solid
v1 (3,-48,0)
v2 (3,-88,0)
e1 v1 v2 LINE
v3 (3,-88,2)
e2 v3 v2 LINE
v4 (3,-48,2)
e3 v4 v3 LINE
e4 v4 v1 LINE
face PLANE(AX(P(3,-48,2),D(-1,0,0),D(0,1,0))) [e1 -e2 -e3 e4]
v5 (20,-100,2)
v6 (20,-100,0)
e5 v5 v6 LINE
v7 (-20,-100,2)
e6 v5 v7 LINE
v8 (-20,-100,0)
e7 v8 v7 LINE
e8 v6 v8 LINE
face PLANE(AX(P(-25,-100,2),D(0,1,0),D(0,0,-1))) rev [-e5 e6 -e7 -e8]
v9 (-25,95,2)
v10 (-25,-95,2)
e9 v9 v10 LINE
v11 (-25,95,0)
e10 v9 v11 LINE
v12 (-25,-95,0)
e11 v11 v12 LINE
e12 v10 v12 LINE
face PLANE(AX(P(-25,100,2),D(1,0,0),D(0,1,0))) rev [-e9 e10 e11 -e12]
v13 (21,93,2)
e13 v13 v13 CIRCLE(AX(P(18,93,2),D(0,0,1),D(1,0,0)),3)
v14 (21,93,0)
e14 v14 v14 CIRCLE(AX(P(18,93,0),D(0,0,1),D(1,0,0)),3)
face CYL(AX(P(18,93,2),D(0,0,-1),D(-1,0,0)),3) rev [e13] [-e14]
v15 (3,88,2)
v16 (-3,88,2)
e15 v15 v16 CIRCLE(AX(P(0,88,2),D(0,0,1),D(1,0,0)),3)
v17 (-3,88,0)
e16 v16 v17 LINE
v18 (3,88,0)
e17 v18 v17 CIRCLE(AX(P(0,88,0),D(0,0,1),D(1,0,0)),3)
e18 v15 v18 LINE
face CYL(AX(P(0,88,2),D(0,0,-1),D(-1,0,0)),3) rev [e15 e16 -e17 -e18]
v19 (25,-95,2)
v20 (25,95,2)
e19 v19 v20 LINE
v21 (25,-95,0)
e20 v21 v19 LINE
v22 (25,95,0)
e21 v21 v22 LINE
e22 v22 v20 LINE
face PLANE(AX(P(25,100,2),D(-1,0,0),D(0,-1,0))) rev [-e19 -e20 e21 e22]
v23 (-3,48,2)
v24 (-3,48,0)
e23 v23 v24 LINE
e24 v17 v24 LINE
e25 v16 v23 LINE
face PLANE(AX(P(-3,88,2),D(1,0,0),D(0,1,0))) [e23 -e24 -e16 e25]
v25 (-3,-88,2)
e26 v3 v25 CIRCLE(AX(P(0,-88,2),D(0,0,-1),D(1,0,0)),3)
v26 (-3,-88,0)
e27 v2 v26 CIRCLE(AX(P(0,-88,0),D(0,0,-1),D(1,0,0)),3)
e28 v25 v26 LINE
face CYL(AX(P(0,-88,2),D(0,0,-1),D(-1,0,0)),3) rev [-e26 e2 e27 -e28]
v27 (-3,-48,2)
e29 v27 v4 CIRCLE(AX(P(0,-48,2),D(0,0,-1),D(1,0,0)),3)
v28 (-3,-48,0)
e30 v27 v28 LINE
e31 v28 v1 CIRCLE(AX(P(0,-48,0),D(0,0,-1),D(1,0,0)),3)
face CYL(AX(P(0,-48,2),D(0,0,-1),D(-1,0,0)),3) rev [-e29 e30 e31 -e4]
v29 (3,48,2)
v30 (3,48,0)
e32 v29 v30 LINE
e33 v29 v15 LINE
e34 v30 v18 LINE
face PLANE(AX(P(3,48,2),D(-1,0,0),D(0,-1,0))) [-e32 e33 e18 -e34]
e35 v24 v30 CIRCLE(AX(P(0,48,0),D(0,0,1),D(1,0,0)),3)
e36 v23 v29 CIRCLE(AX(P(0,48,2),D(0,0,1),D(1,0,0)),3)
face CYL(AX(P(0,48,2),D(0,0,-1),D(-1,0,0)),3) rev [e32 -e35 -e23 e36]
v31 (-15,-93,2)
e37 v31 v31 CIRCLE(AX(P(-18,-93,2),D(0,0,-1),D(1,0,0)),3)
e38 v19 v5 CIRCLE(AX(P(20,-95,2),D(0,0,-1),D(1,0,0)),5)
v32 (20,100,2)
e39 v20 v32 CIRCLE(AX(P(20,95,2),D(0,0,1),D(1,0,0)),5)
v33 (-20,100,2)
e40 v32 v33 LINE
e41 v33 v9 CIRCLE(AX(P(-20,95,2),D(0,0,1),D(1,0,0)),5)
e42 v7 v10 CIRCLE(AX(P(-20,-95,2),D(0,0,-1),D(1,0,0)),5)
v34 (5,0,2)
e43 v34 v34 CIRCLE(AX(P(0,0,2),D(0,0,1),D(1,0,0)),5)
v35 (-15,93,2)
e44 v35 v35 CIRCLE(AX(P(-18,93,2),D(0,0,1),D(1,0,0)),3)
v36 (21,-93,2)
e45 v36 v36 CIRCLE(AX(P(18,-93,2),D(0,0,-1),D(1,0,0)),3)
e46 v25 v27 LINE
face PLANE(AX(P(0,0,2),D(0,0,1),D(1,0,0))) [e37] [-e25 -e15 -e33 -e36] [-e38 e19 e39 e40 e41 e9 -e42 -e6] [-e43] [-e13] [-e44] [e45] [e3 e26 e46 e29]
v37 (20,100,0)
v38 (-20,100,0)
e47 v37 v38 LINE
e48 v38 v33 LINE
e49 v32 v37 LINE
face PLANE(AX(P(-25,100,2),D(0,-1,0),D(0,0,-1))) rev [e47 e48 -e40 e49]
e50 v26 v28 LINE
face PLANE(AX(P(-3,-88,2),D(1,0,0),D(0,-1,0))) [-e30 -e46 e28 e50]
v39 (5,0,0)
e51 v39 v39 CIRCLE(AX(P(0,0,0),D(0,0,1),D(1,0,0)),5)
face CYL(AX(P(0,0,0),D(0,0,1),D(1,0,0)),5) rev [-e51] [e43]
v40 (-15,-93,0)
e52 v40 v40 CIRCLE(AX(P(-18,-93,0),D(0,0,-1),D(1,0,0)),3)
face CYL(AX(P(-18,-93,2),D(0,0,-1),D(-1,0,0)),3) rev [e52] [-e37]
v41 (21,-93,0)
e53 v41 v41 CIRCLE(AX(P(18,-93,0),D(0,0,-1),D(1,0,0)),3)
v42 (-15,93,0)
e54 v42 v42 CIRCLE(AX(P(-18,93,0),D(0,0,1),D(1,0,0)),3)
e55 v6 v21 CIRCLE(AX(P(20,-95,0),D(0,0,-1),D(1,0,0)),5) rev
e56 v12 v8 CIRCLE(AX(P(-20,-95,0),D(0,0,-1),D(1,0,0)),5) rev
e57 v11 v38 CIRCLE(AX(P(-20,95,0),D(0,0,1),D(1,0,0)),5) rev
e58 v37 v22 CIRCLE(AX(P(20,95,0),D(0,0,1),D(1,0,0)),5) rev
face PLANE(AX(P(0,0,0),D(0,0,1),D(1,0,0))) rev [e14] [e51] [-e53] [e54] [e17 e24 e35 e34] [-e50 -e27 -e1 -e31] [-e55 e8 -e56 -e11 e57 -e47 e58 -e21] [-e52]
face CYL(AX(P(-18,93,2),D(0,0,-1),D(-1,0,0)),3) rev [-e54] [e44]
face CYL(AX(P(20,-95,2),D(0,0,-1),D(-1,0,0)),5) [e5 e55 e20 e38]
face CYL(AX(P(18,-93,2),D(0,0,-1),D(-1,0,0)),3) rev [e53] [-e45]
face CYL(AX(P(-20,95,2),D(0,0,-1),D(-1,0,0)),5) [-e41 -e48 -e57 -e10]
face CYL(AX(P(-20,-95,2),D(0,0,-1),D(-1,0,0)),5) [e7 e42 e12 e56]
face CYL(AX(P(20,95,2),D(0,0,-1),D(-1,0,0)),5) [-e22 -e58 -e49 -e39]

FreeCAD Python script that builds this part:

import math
import FreeCAD as App
import Part
import Sketcher

V = App.Vector
Q = App.Units.Quantity


def edges_at(feature, points):
    """Names of the edges that pass closest to the given points."""
    edges = feature.Shape.Edges
    near = lambda p: min(range(len(edges)), key=lambda i: edges[i].distToShape(Part.Vertex(*p))[0])
    return sorted({f"Edge{near(p) + 1}" for p in points})


def add_polygon(sketch, points):
    """Adds a closed chain of lines whose ends are joined by coincident constraints."""
    first, n = sketch.GeometryCount, len(points)
    for a, b in zip(points, points[1:] + points[:1]):
        sketch.addGeometry(Part.LineSegment(App.Vector(*a, 0), App.Vector(*b, 0)), False)
    for i in range(n):
        sketch.addConstraint(Sketcher.Constraint("Coincident", first + i, 2, first + (i + 1) % n, 1))

doc = App.newDocument("Part")
params = doc.addObject("Spreadsheet::Sheet", "Params")
for row, (alias, value) in enumerate([
    ("sketch1_diameter", "6 mm"),
    ("sketch1_width", "50 mm"),
    ("sketch1_height", "100 mm"),
    ("sketch1_height2", "40 mm"),
    ("pad1_length", "2 mm"),
    ("fillet_radius", "5 mm"),
    ("fillet2_radius", "5 mm"),
    ("sketch2_diameter", "10 mm"),
], start=1):
    params.set(f"A{row}", alias)
    params.set(f"B{row}", "=" + value)
    params.setAlias(f"B{row}", alias)

body = doc.addObject("PartDesign::Body", "Body")

# Sketch on XY plane
sketch1 = body.newObject("Sketcher::SketchObject", "Sketch")
sketch1.AttachmentSupport = (doc.getObject("XY_Plane"), [""])
sketch1.MapMode = "FlatFace"
add_polygon(sketch1, [(-25, 100), (-25, 0), (25, 0), (25, 100)])  # lines 0-3
sketch1.addGeometry(Part.LineSegment(V(-3, 48, 0), V(-3, 88, 0)), False)  # 4
sketch1.addGeometry(Part.ArcOfCircle(Part.Circle(V(0, 88, 0), V(0, 0, 1), 3), math.radians(0), math.radians(180)), False)  # 5
sketch1.addGeometry(Part.LineSegment(V(3, 88, 0), V(3, 48, 0)), False)  # 6
sketch1.addGeometry(Part.ArcOfCircle(Part.Circle(V(0, 48, 0), V(0, 0, 1), 3), math.radians(180), math.radians(360)), False)  # 7
sketch1.addGeometry(Part.Circle(V(-18, 93, 0), V(0, 0, 1), 3), False)  # 8
sketch1.addGeometry(Part.Circle(V(18, 93, 0), V(0, 0, 1), 3), False)  # 9
sketch1.addConstraint([
    Sketcher.Constraint("Tangent", 4, 2, 5, 2),
    Sketcher.Constraint("Tangent", 5, 1, 6, 1),
    Sketcher.Constraint("Tangent", 6, 2, 7, 2),
    Sketcher.Constraint("Tangent", 7, 1, 4, 1),
    Sketcher.Constraint("Vertical", 0),
    Sketcher.Constraint("Horizontal", 1),
    Sketcher.Constraint("Vertical", 2),
    Sketcher.Constraint("Horizontal", 3),
    Sketcher.Constraint("Vertical", 4),
    Sketcher.Constraint("Vertical", 6),
    Sketcher.Constraint("Equal", 7, 8),
    Sketcher.Constraint("Equal", 8, 9),
    Sketcher.Constraint("Symmetric", 0, 2, 1, 2, -1, 1),
    Sketcher.Constraint("Symmetric", 8, 3, 9, 3, -2),
    Sketcher.Constraint("PointOnObject", 5, 3, -2),
    Sketcher.Constraint("Diameter", 8, Q("6 mm")),
    Sketcher.Constraint("DistanceX", 1, 1, 1, 2, Q("50 mm")),
    Sketcher.Constraint("DistanceY", 0, 2, 0, 1, Q("100 mm")),
    Sketcher.Constraint("DistanceY", 4, 1, 4, 2, Q("40 mm")),
    Sketcher.Constraint("DistanceY", -1, 1, 5, 3, Q("88 mm")),
    Sketcher.Constraint("DistanceX", 8, 3, -1, 1, Q("18 mm")),
    Sketcher.Constraint("DistanceY", -1, 1, 8, 3, Q("93 mm")),
])
sketch1.setExpression("Constraints[19]", "Params.sketch1_diameter")
sketch1.setExpression("Constraints[20]", "Params.sketch1_width")
sketch1.setExpression("Constraints[21]", "Params.sketch1_height")
sketch1.setExpression("Constraints[22]", "Params.sketch1_height2")
pad1 = body.newObject("PartDesign::Pad", "Pad")
pad1.Profile = sketch1
pad1.setExpression("Length", "Params.pad1_length")
doc.recompute()

fillet = body.newObject("PartDesign::Fillet", "Fillet")
fillet.Base = (pad1, edges_at(pad1, [(25, 100, 1)]))
fillet.setExpression("Radius", "Params.fillet_radius")
doc.recompute()

fillet2 = body.newObject("PartDesign::Fillet", "Fillet001")
fillet2.Base = (fillet, edges_at(fillet, [(-25, 100, 1)]))
fillet2.setExpression("Radius", "Params.fillet2_radius")
body2 = doc.addObject("PartDesign::Body", "Body001")
doc.recompute()

body2.BaseFeature = body
doc.recompute()

mirroring = doc.addObject("Part::Mirroring", "Mirroring")
mirroring.Source = body
mirroring.Base = V(-25, 0, 2)
mirroring.Normal = V(0, 1, 0)
body3 = doc.addObject("PartDesign::Body", "Body002")
body3.BaseFeature = mirroring
boolean = body2.newObject("PartDesign::Boolean", "Boolean")
boolean.Type = "Fuse"
boolean.addObjects([body3])
doc.recompute()

# Sketch on XY plane
sketch2 = body2.newObject("Sketcher::SketchObject", "Sketch001")
sketch2.AttachmentSupport = (doc.getObject("XY_Plane001"), [""])
sketch2.MapMode = "FlatFace"
sketch2.AttachmentOffset = App.Placement(V(0, 0, 2), App.Rotation())
sketch2.addGeometry(Part.Circle(V(0, 0, 0), V(0, 0, 1), 5), False)
sketch2.addConstraint([
    Sketcher.Constraint("Coincident", 0, 3, -1, 1),
    Sketcher.Constraint("Diameter", 0, Q("10 mm")),
])
sketch2.setExpression("Constraints[1]", "Params.sketch2_diameter")
pocket1 = body2.newObject("PartDesign::Pocket", "Pocket")
pocket1.Profile = sketch2
pocket1.Type = "ThroughAll"
mirroring.Visibility = False

doc.recompute()
